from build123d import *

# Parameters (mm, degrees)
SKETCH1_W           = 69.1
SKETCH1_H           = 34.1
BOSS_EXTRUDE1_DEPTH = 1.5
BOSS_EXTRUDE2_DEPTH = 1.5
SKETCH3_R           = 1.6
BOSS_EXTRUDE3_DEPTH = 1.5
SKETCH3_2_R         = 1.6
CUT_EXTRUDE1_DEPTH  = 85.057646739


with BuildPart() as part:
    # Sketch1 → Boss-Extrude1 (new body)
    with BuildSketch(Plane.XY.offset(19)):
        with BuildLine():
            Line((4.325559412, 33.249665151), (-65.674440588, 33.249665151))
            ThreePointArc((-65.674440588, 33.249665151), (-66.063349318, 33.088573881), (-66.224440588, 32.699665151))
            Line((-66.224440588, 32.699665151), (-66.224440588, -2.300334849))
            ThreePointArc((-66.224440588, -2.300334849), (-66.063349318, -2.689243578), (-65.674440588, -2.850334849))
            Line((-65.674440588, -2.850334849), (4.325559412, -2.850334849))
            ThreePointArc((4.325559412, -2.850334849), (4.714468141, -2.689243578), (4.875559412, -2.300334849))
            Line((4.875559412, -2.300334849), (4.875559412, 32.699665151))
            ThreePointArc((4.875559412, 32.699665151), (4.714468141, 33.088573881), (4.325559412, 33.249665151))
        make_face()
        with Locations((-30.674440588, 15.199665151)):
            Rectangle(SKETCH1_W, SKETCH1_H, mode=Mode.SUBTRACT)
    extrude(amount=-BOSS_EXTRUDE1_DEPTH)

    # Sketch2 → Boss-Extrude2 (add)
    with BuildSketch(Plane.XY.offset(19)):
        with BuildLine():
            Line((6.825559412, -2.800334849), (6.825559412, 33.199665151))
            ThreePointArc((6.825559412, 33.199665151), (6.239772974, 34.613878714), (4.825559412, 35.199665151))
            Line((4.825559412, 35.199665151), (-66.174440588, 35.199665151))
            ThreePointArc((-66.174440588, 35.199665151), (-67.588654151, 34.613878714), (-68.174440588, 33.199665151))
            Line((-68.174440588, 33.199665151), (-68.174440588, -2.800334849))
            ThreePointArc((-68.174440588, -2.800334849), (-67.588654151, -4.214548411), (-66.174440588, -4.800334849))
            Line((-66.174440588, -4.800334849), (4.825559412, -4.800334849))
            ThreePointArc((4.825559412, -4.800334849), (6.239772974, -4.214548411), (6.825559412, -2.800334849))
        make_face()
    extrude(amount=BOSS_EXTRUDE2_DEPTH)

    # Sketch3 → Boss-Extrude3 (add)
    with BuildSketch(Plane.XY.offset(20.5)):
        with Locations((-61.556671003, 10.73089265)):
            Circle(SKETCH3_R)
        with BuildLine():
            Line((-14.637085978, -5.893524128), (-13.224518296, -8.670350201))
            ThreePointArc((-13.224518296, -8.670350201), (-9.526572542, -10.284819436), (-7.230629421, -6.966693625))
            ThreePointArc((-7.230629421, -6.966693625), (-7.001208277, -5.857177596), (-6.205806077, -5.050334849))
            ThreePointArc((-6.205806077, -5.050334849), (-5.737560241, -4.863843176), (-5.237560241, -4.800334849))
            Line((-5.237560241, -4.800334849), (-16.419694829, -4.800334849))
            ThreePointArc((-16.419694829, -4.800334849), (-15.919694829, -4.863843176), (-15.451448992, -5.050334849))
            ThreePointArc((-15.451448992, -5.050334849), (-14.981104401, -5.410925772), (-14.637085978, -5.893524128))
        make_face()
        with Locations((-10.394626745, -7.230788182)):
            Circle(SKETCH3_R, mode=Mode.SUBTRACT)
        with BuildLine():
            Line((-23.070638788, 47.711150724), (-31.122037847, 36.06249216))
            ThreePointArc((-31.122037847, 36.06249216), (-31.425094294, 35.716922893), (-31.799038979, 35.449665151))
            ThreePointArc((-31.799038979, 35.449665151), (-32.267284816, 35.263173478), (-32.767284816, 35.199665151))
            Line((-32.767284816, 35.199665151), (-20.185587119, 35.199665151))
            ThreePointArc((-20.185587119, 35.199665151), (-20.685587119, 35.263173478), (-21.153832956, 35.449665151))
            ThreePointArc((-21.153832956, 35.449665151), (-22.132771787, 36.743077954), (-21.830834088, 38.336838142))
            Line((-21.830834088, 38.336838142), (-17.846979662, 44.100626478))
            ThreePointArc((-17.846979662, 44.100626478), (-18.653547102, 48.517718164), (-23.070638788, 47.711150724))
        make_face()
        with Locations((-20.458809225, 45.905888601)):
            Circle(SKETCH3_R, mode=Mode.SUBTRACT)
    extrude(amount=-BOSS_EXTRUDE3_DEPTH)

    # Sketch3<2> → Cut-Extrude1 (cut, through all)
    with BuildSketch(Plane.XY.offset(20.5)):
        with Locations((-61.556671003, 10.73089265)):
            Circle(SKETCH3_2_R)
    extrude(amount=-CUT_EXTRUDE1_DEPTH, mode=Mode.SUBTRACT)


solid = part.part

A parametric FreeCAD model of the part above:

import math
import FreeCAD as App
import Part
import Sketcher
from FreeCAD import Vector


def add_polygon(sketch, points):
    """Adds a closed chain of lines whose ends are joined by coincident constraints."""
    first, n = sketch.GeometryCount, len(points)
    for a, b in zip(points, points[1:] + points[:1]):
        sketch.addGeometry(Part.LineSegment(App.Vector(*a, 0), App.Vector(*b, 0)), False)
    for i in range(n):
        sketch.addConstraint(Sketcher.Constraint("Coincident", first + i, 2, first + (i + 1) % n, 1))

doc = App.newDocument("Part")
body = doc.addObject("PartDesign::Body", "Body")

sketch1 = body.newObject("Sketcher::SketchObject", "Sketch")
sketch1.AttachmentSupport = (doc.getObject("XY_Plane"), [""])
sketch1.MapMode = "FlatFace"
sketch1.AttachmentOffset = App.Placement(Vector(0, 0, 19), App.Rotation())
sketch1.addGeometry(Part.LineSegment(Vector(4.3, 33.2, 0), Vector(-65.7, 33.2, 0)), False)
sketch1.addGeometry(Part.ArcOfCircle(Part.Circle(Vector(-65.7, 32.7, 0), Vector(0, 0, 1), 0.5), math.radians(90), math.radians(180)), False)
sketch1.addGeometry(Part.LineSegment(Vector(-66.2, 32.7, 0), Vector(-66.2, -2.3, 0)), False)
sketch1.addGeometry(Part.ArcOfCircle(Part.Circle(Vector(-65.7, -2.3, 0), Vector(0, 0, 1), 0.6), math.radians(-180), math.radians(-90)), False)
sketch1.addGeometry(Part.LineSegment(Vector(-65.7, -2.9, 0), Vector(4.3, -2.9, 0)), False)
sketch1.addGeometry(Part.ArcOfCircle(Part.Circle(Vector(4.3, -2.3, 0), Vector(0, 0, 1), 0.6), math.radians(-90), math.radians(0)), False)
sketch1.addGeometry(Part.LineSegment(Vector(4.9, -2.3, 0), Vector(4.9, 32.7, 0)), False)
sketch1.addGeometry(Part.ArcOfCircle(Part.Circle(Vector(4.3, 32.7, 0), Vector(0, 0, 1), 0.6), math.radians(0), math.radians(90)), False)
add_polygon(sketch1, [(3.9, -1.9), (-65.2, -1.9), (-65.2, 32.2), (3.9, 32.2)])
sketch1.addConstraint(Sketcher.Constraint("Tangent", 0, 2, 1, 1))
sketch1.addConstraint(Sketcher.Constraint("Tangent", 1, 2, 2, 1))
sketch1.addConstraint(Sketcher.Constraint("Tangent", 2, 2, 3, 1))
sketch1.addConstraint(Sketcher.Constraint("Tangent", 3, 2, 4, 1))
sketch1.addConstraint(Sketcher.Constraint("Tangent", 4, 2, 5, 1))
sketch1.addConstraint(Sketcher.Constraint("Tangent", 5, 2, 6, 1))
sketch1.addConstraint(Sketcher.Constraint("Tangent", 6, 2, 7, 1))
sketch1.addConstraint(Sketcher.Constraint("Tangent", 7, 2, 0, 1))
sketch1.addConstraint(Sketcher.Constraint("Horizontal", 0))
sketch1.addConstraint(Sketcher.Constraint("Vertical", 2))
sketch1.addConstraint(Sketcher.Constraint("Horizontal", 4))
sketch1.addConstraint(Sketcher.Constraint("Vertical", 6))
sketch1.addConstraint(Sketcher.Constraint("Horizontal", 8))
sketch1.addConstraint(Sketcher.Constraint("Vertical", 9))
sketch1.addConstraint(Sketcher.Constraint("Horizontal", 10))
sketch1.addConstraint(Sketcher.Constraint("Vertical", 11))
sketch1.addConstraint(Sketcher.Constraint("Equal", 1, 3))
sketch1.addConstraint(Sketcher.Constraint("Equal", 3, 5))
sketch1.addConstraint(Sketcher.Constraint("Equal", 5, 7))
sketch1.addConstraint(Sketcher.Constraint("DistanceX", 0, 2, 0, 1, 70.0))
sketch1.addConstraint(Sketcher.Constraint("DistanceY", 2, 2, 2, 1, 35.0))
sketch1.addConstraint(Sketcher.Constraint("Radius", 1, 0.55))
sketch1.addConstraint(Sketcher.Constraint("DistanceX", 8, 2, 8, 1, 69.1))
sketch1.addConstraint(Sketcher.Constraint("DistanceY", 9, 1, 9, 2, 34.1))
sketch1.addConstraint(Sketcher.Constraint("DistanceX", 2, 2, 8, 2, 1.0))
sketch1.addConstraint(Sketcher.Constraint("DistanceY", 3, 2, 8, 2, 1.0))
sketch1.addConstraint(Sketcher.Constraint("DistanceX", 1, 3, -1, 1, 65.674441))
sketch1.addConstraint(Sketcher.Constraint("DistanceY", -1, 1, 1, 3, 32.699665))
pad1 = body.newObject("PartDesign::Pad", "Pad")
pad1.Profile = sketch1
pad1.Length = 1.5
pad1.Reversed = True

sketch2 = body.newObject("Sketcher::SketchObject", "Sketch001")
sketch2.AttachmentSupport = (doc.getObject("XY_Plane"), [""])
sketch2.MapMode = "FlatFace"
sketch2.AttachmentOffset = App.Placement(Vector(0, 0, 19), App.Rotation())
sketch2.addGeometry(Part.LineSegment(Vector(6.8, -2.8, 0), Vector(6.8, 33.2, 0)), False)
sketch2.addGeometry(Part.ArcOfCircle(Part.Circle(Vector(4.8, 33.2, 0), Vector(0, 0, 1), 2), math.radians(0), math.radians(90)), False)
sketch2.addGeometry(Part.LineSegment(Vector(4.8, 35.2, 0), Vector(-66.2, 35.2, 0)), False)
sketch2.addGeometry(Part.ArcOfCircle(Part.Circle(Vector(-66.2, 33.2, 0), Vector(0, 0, 1), 2), math.radians(90), math.radians(180)), False)
sketch2.addGeometry(Part.LineSegment(Vector(-68.2, 33.2, 0), Vector(-68.2, -2.8, 0)), False)
sketch2.addGeometry(Part.ArcOfCircle(Part.Circle(Vector(-66.2, -2.8, 0), Vector(0, 0, 1), 2), math.radians(180), math.radians(270)), False)
sketch2.addGeometry(Part.LineSegment(Vector(-66.2, -4.8, 0), Vector(4.8, -4.8, 0)), False)
sketch2.addGeometry(Part.ArcOfCircle(Part.Circle(Vector(4.8, -2.8, 0), Vector(0, 0, 1), 2), math.radians(-90), math.radians(0)), False)
sketch2.addConstraint(Sketcher.Constraint("Tangent", 0, 2, 1, 1))
sketch2.addConstraint(Sketcher.Constraint("Tangent", 1, 2, 2, 1))
sketch2.addConstraint(Sketcher.Constraint("Tangent", 2, 2, 3, 1))
sketch2.addConstraint(Sketcher.Constraint("Tangent", 3, 2, 4, 1))
sketch2.addConstraint(Sketcher.Constraint("Tangent", 4, 2, 5, 1))
sketch2.addConstraint(Sketcher.Constraint("Tangent", 5, 2, 6, 1))
sketch2.addConstraint(Sketcher.Constraint("Tangent", 6, 2, 7, 1))
sketch2.addConstraint(Sketcher.Constraint("Tangent", 7, 2, 0, 1))
sketch2.addConstraint(Sketcher.Constraint("Vertical", 0))
sketch2.addConstraint(Sketcher.Constraint("Horizontal", 2))
sketch2.addConstraint(Sketcher.Constraint("Vertical", 4))
sketch2.addConstraint(Sketcher.Constraint("Horizontal", 6))
sketch2.addConstraint(Sketcher.Constraint("Equal", 1, 3))
sketch2.addConstraint(Sketcher.Constraint("Equal", 3, 5))
sketch2.addConstraint(Sketcher.Constraint("Equal", 5, 7))
sketch2.addConstraint(Sketcher.Constraint("Radius", 1, 2.0))
sketch2.addConstraint(Sketcher.Constraint("DistanceX", 2, 2, 2, 1, 71.0))
sketch2.addConstraint(Sketcher.Constraint("DistanceY", 0, 1, 0, 2, 36.0))
sketch2.addConstraint(Sketcher.Constraint("DistanceX", -1, 1, 1, 3, 4.825559))
sketch2.addConstraint(Sketcher.Constraint("DistanceY", -1, 1, 1, 3, 33.199665))
pad2 = body.newObject("PartDesign::Pad", "Pad001")
pad2.Profile = sketch2
pad2.Length = 1.5

sketch3 = body.newObject("Sketcher::SketchObject", "Sketch002")
sketch3.AttachmentSupport = (doc.getObject("XY_Plane"), [""])
sketch3.MapMode = "FlatFace"
sketch3.AttachmentOffset = App.Placement(Vector(0, 0, 20.5), App.Rotation())
sketch3.addGeometry(Part.Circle(Vector(-61.6, 10.7, 0), Vector(0, 0, 1), 1.6), False)
sketch3.addGeometry(Part.LineSegment(Vector(-14.6, -5.9, 0), Vector(-13.2, -8.7, 0)), False)
sketch3.addGeometry(Part.ArcOfCircle(Part.Circle(Vector(-10.4, -7.2, 0), Vector(0, 0, 1), 3.2), math.radians(-153), math.radians(5)), False)
sketch3.addGeometry(Part.ArcOfCircle(Part.Circle(Vector(-5.2, -6.8, 0), Vector(0, 0, 1), 2), math.radians(119), math.radians(185)), False)
sketch3.addGeometry(Part.ArcOfCircle(Part.Circle(Vector(-5.2, -6.8, 0), Vector(0, 0, 1), 2), math.radians(90), math.radians(119)), False)
sketch3.addGeometry(Part.LineSegment(Vector(-5.2, -4.8, 0), Vector(-16.4, -4.8, 0)), False)
sketch3.addGeometry(Part.ArcOfCircle(Part.Circle(Vector(-16.4, -6.8, 0), Vector(0, 0, 1), 2), math.radians(61), math.radians(90)), False)
sketch3.addGeometry(Part.ArcOfCircle(Part.Circle(Vector(-16.4, -6.8, 0), Vector(0, 0, 1), 2), math.radians(27), math.radians(61)), False)
sketch3.addGeometry(Part.Circle(Vector(-10.4, -7.2, 0), Vector(0, 0, 1), 1.6), False)
sketch3.addGeometry(Part.LineSegment(Vector(-23.1, 47.7, 0), Vector(-31.1, 36.1, 0)), False)
sketch3.addGeometry(Part.ArcOfCircle(Part.Circle(Vector(-32.8, 37.2, 0), Vector(0, 0, 1), 2), math.radians(-61), math.radians(-35)), False)
sketch3.addGeometry(Part.ArcOfCircle(Part.Circle(Vector(-32.8, 37.2, 0), Vector(0, 0, 1), 2), math.radians(-90), math.radians(-61)), False)
sketch3.addGeometry(Part.LineSegment(Vector(-32.8, 35.2, 0), Vector(-20.2, 35.2, 0)), False)
sketch3.addGeometry(Part.ArcOfCircle(Part.Circle(Vector(-20.2, 37.2, 0), Vector(0, 0, 1), 2), math.radians(-119), math.radians(-90)), False)
sketch3.addGeometry(Part.ArcOfCircle(Part.Circle(Vector(-20.2, 37.2, 0), Vector(0, 0, 1), 2), math.radians(145), math.radians(241)), False)
sketch3.addGeometry(Part.LineSegment(Vector(-21.8, 38.3, 0), Vector(-17.8, 44.1, 0)), False)
sketch3.addGeometry(Part.ArcOfCircle(Part.Circle(Vector(-20.5, 45.9, 0), Vector(0, 0, 1), 3.2), math.radians(-35), math.radians(145)), False)
sketch3.addGeometry(Part.Circle(Vector(-20.5, 45.9, 0), Vector(0, 0, 1), 1.6), False)
sketch3.addConstraint(Sketcher.Constraint("Tangent", 1, 2, 2, 1))
sketch3.addConstraint(Sketcher.Constraint("Tangent", 2, 2, 3, 2))
sketch3.addConstraint(Sketcher.Constraint("Tangent", 3, 1, 4, 2))
sketch3.addConstraint(Sketcher.Constraint("Tangent", 4, 1, 5, 1))
sketch3.addConstraint(Sketcher.Constraint("Tangent", 5, 2, 6, 2))
sketch3.addConstraint(Sketcher.Constraint("Tangent", 6, 1, 7, 2))
sketch3.addConstraint(Sketcher.Constraint("Tangent", 7, 1, 1, 1))
sketch3.addConstraint(Sketcher.Constraint("Tangent", 9, 2, 10, 2))
sketch3.addConstraint(Sketcher.Constraint("Tangent", 10, 1, 11, 2))
sketch3.addConstraint(Sketcher.Constraint("Tangent", 11, 1, 12, 1))
sketch3.addConstraint(Sketcher.Constraint("Tangent", 12, 2, 13, 2))
sketch3.addConstraint(Sketcher.Constraint("Tangent", 13, 1, 14, 2))
sketch3.addConstraint(Sketcher.Constraint("Tangent", 14, 1, 15, 1))
sketch3.addConstraint(Sketcher.Constraint("Tangent", 15, 2, 16, 1))
sketch3.addConstraint(Sketcher.Constraint("Tangent", 16, 2, 9, 1))
sketch3.addConstraint(Sketcher.Constraint("Horizontal", 5))
sketch3.addConstraint(Sketcher.Constraint("Horizontal", 12))
sketch3.addConstraint(Sketcher.Constraint("Coincident", 8, 3, 2, 3))
sketch3.addConstraint(Sketcher.Constraint("Coincident", 17, 3, 16, 3))
sketch3.addConstraint(Sketcher.Constraint("Equal", 3, 4))
sketch3.addConstraint(Sketcher.Constraint("Equal", 4, 6))
sketch3.addConstraint(Sketcher.Constraint("Equal", 6, 7))
sketch3.addConstraint(Sketcher.Constraint("Equal", 0, 8))
sketch3.addConstraint(Sketcher.Constraint("Equal", 7, 10))
sketch3.addConstraint(Sketcher.Constraint("Equal", 10, 11))
sketch3.addConstraint(Sketcher.Constraint("Equal", 11, 13))
sketch3.addConstraint(Sketcher.Constraint("Equal", 13, 14))
sketch3.addConstraint(Sketcher.Constraint("Equal", 2, 16))
sketch3.addConstraint(Sketcher.Constraint("Equal", 8, 17))
sketch3.addConstraint(Sketcher.Constraint("Parallel", 9, 15))
sketch3.addConstraint(Sketcher.Constraint("Horizontal", 3, 1, 6, 1))
sketch3.addConstraint(Sketcher.Constraint("Horizontal", 10, 1, 13, 1))
sketch3.addConstraint(Sketcher.Constraint("Radius", 3, 2.0))
sketch3.addConstraint(Sketcher.Constraint("Diameter", 0, 3.2))
sketch3.addConstraint(Sketcher.Constraint("Radius", 2, 3.175))
sketch3.addConstraint(Sketcher.Constraint("DistanceY", 7, 3, 10, 3, 44.0))
sketch3.addConstraint(Sketcher.Constraint("DistanceY", 4, 3, 3, 1, 1.75))
sketch3.addConstraint(Sketcher.Constraint("DistanceY", 10, 1, 10, 3, 1.75))
sketch3.addConstraint(Sketcher.Constraint("DistanceX", 10, 1, 9, 2, 0.677001))
sketch3.addConstraint(Sketcher.Constraint("DistanceX", 5, 2, 5, 1, 11.182135))
sketch3.addConstraint(Sketcher.Constraint("DistanceX", 0, 3, -1, 1, 61.556671))
sketch3.addConstraint(Sketcher.Constraint("DistanceY", 2, 3, -1, 1, 7.230788))
sketch3.addConstraint(Sketcher.Constraint("DistanceX", 3, 3, -1, 1, 5.23756))
sketch3.addConstraint(Sketcher.Constraint("DistanceX", 16, 3, -1, 1, 20.458809))
sketch3.addConstraint(Sketcher.Constraint("DistanceY", -1, 1, 16, 3, 45.905889))
sketch3.addConstraint(Sketcher.Constraint("DistanceX", 1, 2, -1, 1, 13.224518))
sketch3.addConstraint(Sketcher.Constraint("DistanceY", 2, 3, 0, 3, 17.961681))
pad3 = body.newObject("PartDesign::Pad", "Pad002")
pad3.Profile = sketch3
pad3.Length = 1.5
pad3.Reversed = True

sketch4 = body.newObject("Sketcher::SketchObject", "Sketch003")
sketch4.AttachmentSupport = (doc.getObject("XY_Plane"), [""])
sketch4.MapMode = "FlatFace"
sketch4.AttachmentOffset = App.Placement(Vector(0, 0, 20.5), App.Rotation())
sketch4.addGeometry(Part.Circle(Vector(-61.6, 10.7, 0), Vector(0, 0, 1), 1.6), False)
sketch4.addConstraint(Sketcher.Constraint("Diameter", 0, 3.2))
sketch4.addConstraint(Sketcher.Constraint("DistanceX", 0, 3, -1, 1, 61.556671))
sketch4.addConstraint(Sketcher.Constraint("DistanceY", -1, 1, 0, 3, 10.730893))
pocket1 = body.newObject("PartDesign::Pocket", "Pocket")
pocket1.Profile = sketch4
pocket1.Type = "ThroughAll"

doc.recompute()
